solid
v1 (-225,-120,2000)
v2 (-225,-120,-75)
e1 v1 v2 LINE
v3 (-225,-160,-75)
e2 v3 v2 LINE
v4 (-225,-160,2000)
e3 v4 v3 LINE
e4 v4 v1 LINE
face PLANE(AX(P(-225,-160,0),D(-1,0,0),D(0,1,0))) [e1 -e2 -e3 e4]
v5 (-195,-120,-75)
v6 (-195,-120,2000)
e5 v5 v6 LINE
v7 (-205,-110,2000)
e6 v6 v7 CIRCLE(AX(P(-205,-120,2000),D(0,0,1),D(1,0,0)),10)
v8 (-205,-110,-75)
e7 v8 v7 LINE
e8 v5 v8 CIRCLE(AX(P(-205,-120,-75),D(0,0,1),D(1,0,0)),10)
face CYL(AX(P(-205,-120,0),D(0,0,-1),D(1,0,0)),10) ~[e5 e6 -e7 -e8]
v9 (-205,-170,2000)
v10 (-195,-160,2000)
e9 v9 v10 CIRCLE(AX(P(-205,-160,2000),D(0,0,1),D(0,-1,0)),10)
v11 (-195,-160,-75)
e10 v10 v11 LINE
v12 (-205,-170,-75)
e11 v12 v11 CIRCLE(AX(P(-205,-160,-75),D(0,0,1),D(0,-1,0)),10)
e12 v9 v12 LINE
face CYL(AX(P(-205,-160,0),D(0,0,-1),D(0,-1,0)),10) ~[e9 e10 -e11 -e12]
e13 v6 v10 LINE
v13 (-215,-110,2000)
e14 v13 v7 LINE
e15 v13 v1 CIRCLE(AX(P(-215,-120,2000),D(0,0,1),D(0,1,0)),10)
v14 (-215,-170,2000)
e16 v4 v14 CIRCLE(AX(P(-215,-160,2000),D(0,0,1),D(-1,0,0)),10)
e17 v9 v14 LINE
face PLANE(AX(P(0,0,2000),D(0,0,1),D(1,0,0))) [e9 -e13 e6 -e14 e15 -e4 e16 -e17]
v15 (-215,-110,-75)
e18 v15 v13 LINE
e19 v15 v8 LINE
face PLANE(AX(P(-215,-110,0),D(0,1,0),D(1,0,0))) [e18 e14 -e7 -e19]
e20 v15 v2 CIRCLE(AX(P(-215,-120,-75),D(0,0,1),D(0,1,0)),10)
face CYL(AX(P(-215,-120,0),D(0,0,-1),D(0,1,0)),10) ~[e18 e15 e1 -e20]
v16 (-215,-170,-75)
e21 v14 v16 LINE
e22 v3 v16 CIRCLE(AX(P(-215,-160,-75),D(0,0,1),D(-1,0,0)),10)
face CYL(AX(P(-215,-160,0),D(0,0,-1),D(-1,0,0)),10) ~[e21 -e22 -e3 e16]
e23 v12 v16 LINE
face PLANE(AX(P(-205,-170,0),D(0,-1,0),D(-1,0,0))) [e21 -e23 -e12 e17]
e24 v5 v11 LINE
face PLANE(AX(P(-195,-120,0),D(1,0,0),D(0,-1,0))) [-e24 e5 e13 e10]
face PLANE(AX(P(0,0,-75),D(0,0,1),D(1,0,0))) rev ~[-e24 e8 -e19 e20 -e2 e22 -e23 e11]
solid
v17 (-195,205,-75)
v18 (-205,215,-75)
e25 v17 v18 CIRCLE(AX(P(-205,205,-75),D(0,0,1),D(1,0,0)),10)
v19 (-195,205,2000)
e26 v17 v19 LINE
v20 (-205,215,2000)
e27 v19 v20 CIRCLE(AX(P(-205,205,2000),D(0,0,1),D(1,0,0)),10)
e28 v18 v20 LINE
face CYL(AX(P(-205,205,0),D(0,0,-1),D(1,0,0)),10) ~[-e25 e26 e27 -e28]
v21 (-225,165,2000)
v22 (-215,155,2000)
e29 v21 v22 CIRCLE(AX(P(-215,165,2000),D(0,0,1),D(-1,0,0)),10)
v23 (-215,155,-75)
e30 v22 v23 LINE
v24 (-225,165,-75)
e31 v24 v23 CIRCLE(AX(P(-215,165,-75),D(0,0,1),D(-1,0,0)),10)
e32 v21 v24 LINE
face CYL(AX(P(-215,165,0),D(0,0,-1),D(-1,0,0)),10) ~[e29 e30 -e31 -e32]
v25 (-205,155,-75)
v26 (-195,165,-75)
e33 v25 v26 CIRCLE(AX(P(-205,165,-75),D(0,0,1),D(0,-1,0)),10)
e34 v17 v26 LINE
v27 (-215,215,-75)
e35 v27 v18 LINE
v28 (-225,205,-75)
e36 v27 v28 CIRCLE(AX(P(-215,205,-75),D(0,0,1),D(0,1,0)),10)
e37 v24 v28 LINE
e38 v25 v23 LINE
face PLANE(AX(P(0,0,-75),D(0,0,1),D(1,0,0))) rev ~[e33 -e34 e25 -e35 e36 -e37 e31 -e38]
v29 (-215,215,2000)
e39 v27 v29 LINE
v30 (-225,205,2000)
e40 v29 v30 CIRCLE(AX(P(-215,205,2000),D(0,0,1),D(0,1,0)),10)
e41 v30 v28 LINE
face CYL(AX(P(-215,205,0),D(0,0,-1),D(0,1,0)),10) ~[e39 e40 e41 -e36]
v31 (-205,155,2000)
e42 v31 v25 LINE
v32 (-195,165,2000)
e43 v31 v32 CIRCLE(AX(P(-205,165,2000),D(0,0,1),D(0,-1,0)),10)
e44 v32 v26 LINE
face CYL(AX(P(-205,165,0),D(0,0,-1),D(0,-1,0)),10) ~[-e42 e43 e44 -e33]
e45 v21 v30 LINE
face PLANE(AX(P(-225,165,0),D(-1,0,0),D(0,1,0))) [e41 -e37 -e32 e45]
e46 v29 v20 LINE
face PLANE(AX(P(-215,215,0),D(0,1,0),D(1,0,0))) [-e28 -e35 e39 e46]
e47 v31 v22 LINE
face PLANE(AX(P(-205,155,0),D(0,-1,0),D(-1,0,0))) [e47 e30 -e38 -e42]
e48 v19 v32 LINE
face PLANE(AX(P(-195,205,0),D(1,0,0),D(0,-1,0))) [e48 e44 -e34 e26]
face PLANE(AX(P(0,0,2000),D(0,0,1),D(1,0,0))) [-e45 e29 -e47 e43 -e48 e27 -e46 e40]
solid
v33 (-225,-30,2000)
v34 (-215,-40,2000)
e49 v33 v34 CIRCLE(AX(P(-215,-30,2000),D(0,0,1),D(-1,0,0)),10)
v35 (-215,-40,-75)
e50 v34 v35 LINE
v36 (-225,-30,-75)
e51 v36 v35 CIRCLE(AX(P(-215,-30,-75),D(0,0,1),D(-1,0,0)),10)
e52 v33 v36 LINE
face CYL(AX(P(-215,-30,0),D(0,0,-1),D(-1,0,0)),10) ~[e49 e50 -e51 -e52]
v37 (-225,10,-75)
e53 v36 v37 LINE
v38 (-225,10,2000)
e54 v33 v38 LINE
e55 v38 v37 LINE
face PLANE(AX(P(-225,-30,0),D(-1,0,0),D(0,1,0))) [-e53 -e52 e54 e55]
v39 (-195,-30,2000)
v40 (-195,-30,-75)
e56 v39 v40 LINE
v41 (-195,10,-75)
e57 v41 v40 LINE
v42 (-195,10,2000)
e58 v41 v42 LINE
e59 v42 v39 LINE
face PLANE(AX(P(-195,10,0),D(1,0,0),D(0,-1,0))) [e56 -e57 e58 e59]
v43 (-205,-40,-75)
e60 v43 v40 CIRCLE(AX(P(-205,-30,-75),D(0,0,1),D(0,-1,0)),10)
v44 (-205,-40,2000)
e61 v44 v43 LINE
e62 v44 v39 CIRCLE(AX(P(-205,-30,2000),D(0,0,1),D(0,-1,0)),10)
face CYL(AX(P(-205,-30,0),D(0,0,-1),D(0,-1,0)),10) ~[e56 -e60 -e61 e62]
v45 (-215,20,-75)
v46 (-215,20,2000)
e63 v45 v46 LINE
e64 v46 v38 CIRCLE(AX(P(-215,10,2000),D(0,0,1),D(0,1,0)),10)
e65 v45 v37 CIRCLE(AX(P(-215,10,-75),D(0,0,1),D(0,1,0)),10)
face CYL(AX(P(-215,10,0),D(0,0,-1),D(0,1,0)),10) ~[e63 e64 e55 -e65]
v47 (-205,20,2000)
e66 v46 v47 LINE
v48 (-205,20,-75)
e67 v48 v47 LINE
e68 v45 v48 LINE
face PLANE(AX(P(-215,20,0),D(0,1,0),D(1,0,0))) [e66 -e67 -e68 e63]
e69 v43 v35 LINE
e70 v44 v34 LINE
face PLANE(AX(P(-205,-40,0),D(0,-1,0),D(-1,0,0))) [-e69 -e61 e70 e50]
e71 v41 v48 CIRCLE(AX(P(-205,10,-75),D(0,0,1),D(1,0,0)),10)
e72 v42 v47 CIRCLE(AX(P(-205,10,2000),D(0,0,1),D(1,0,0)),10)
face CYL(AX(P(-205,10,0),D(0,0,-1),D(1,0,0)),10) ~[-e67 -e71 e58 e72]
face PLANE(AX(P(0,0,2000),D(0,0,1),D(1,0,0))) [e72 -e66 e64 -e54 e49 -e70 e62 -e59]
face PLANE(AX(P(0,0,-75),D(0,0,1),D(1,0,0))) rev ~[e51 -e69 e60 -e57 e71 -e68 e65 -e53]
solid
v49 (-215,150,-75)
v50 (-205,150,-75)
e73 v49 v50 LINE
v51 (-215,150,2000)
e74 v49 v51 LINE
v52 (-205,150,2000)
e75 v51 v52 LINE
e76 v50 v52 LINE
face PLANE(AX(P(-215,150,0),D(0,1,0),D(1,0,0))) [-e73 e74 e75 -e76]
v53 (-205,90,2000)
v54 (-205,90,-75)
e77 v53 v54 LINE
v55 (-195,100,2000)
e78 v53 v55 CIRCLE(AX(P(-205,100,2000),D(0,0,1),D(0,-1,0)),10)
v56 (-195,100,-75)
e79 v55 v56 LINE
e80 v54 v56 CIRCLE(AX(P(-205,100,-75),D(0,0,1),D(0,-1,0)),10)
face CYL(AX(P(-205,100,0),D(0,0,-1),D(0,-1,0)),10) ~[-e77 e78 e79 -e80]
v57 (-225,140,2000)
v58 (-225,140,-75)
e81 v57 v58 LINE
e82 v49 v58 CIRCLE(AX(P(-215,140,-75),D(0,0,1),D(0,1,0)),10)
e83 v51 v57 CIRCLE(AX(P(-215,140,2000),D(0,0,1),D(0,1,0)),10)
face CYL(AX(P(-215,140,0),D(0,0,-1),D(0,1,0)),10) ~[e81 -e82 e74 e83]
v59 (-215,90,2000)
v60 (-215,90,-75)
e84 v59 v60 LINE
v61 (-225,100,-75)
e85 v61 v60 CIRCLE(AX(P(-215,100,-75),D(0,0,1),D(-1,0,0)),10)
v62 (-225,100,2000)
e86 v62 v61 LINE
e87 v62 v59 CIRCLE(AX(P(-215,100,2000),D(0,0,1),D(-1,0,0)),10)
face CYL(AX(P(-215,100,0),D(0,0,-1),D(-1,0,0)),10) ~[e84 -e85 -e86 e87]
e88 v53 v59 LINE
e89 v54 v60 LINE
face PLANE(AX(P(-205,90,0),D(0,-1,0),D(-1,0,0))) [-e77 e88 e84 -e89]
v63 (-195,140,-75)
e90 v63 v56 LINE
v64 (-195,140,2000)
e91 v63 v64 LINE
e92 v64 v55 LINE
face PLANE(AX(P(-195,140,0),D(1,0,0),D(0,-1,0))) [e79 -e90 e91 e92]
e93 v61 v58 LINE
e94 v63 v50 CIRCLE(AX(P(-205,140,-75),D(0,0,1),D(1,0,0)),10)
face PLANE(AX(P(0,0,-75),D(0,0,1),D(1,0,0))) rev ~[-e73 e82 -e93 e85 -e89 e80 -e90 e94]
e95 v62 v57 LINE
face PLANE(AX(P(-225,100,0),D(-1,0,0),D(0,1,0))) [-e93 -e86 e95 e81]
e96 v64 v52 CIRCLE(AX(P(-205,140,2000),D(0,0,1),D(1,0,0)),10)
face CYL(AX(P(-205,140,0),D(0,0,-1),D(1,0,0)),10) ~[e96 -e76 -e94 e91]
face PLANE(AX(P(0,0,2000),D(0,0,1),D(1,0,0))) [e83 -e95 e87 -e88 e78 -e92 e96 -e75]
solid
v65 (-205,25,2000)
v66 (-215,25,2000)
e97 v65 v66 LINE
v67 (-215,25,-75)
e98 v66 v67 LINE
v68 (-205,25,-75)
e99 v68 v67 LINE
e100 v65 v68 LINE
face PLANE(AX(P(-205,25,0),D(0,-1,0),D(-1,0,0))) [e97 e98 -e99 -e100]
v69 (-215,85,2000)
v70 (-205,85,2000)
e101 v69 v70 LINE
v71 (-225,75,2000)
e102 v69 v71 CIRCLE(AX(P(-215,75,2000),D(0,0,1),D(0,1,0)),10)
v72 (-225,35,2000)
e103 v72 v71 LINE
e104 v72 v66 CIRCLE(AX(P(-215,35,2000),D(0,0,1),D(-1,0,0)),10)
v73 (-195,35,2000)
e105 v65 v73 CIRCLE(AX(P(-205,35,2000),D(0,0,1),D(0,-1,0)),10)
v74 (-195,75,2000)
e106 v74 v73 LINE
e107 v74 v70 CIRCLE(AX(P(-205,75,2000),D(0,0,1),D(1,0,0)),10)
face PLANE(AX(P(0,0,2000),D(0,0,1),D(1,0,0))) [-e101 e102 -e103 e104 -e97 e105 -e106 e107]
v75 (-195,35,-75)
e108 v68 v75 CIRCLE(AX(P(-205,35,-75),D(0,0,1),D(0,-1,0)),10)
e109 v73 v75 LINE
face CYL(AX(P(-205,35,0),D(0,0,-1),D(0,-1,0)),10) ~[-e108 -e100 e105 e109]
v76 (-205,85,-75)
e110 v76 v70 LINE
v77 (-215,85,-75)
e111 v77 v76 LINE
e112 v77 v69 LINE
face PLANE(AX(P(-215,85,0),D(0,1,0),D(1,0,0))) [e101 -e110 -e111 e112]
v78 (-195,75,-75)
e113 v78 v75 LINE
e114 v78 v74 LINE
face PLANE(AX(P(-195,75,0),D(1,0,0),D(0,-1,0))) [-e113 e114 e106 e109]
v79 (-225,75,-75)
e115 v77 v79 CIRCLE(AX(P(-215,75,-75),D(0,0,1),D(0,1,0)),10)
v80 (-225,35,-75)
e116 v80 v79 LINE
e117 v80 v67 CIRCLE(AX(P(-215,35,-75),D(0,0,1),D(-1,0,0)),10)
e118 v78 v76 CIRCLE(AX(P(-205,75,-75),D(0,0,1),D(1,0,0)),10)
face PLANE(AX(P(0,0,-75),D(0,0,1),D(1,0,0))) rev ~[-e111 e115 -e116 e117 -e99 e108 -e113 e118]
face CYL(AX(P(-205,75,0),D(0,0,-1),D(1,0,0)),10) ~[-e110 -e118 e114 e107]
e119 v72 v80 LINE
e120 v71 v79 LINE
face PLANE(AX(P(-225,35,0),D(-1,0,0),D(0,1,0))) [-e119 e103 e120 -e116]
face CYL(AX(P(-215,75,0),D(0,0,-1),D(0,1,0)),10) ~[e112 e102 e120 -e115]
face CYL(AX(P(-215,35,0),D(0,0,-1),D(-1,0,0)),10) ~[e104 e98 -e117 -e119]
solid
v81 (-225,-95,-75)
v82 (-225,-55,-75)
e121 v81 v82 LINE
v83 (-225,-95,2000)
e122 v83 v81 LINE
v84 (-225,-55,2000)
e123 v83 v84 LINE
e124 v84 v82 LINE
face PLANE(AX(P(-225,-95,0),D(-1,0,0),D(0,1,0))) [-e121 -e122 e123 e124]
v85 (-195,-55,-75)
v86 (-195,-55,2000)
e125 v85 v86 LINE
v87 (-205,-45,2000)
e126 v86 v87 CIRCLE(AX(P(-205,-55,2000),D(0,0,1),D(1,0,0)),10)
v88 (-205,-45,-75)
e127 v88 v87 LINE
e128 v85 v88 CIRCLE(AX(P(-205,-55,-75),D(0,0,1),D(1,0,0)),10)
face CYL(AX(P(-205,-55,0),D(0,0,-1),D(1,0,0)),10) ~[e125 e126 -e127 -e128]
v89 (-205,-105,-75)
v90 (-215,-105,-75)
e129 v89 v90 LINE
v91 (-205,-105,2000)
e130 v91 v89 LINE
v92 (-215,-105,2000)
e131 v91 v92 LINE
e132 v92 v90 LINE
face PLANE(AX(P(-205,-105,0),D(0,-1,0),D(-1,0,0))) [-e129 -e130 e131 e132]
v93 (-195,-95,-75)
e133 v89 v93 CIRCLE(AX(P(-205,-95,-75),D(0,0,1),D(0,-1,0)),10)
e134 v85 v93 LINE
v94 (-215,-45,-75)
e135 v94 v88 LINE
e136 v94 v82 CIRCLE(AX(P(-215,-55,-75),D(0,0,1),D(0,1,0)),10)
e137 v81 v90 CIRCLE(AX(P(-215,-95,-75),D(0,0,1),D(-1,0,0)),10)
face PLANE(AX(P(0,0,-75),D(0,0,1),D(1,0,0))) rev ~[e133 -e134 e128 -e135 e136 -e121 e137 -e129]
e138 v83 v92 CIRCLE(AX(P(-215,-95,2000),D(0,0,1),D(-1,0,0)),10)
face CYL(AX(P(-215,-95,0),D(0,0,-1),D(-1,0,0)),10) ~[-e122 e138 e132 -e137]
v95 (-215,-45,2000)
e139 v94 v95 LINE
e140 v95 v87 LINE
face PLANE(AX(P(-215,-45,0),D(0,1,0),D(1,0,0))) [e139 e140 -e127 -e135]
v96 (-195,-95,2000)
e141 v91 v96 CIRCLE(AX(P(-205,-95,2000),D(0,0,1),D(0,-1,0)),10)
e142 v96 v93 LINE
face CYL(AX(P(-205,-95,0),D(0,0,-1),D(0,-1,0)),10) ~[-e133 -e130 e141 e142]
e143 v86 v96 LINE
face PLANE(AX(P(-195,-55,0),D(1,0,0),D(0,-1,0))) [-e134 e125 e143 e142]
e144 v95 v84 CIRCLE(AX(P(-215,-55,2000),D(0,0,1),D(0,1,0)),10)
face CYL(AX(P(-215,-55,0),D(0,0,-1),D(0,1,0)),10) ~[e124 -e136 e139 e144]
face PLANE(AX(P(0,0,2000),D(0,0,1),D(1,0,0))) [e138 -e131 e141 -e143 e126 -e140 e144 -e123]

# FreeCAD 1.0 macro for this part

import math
import FreeCAD as App
import Part
import Sketcher
from FreeCAD import Vector
Q = App.Units.Quantity

doc = App.newDocument("Part")
params = doc.addObject("Spreadsheet::Sheet", "Params")
for row, (alias, value) in enumerate([
    ("sketch1_radius", "10 mm"),
    ("sketch1_width", "10 mm"),
    ("sketch1_height", "40 mm"),
    ("pad1_length", "2000 mm"),
    ("pad1_length2", "75 mm"),
], start=1):
    params.set(f"A{row}", alias)
    params.set(f"B{row}", "=" + value)
    params.setAlias(f"B{row}", alias)

body = doc.addObject("PartDesign::Body", "Body")
body.AllowCompound = True

sketch1 = body.newObject("Sketcher::SketchObject", "Sketch")
sketch1.AttachmentSupport = (doc.getObject("XY_Plane"), [""])
sketch1.MapMode = "FlatFace"
sketch1.addGeometry([
    Part.LineSegment(Vector(-195, -30, 0), Vector(-195, 10, 0)),
    Part.ArcOfCircle(Part.Circle(Vector(-205, 10, 0), Vector(0, 0, 1), 10), math.radians(0), math.radians(90)),
    Part.LineSegment(Vector(-205, 20, 0), Vector(-215, 20, 0)),
    Part.ArcOfCircle(Part.Circle(Vector(-215, 10, 0), Vector(0, 0, 1), 10), math.radians(90), math.radians(180)),
    Part.LineSegment(Vector(-225, 10, 0), Vector(-225, -30, 0)),
    Part.ArcOfCircle(Part.Circle(Vector(-215, -30, 0), Vector(0, 0, 1), 10), math.radians(180), math.radians(270)),
    Part.LineSegment(Vector(-215, -40, 0), Vector(-205, -40, 0)),
    Part.ArcOfCircle(Part.Circle(Vector(-205, -30, 0), Vector(0, 0, 1), 10), math.radians(-90), math.radians(0)),
    Part.LineSegment(Vector(-195, 165, 0), Vector(-195, 205, 0)),
    Part.ArcOfCircle(Part.Circle(Vector(-205, 205, 0), Vector(0, 0, 1), 10), math.radians(0), math.radians(90)),
    Part.LineSegment(Vector(-205, 215, 0), Vector(-215, 215, 0)),
    Part.ArcOfCircle(Part.Circle(Vector(-215, 205, 0), Vector(0, 0, 1), 10), math.radians(90), math.radians(180)),
    Part.LineSegment(Vector(-225, 205, 0), Vector(-225, 165, 0)),
    Part.ArcOfCircle(Part.Circle(Vector(-215, 165, 0), Vector(0, 0, 1), 10), math.radians(180), math.radians(270)),
    Part.LineSegment(Vector(-215, 155, 0), Vector(-205, 155, 0)),
    Part.ArcOfCircle(Part.Circle(Vector(-205, 165, 0), Vector(0, 0, 1), 10), math.radians(-90), math.radians(0)),
    Part.LineSegment(Vector(-195, -95, 0), Vector(-195, -55, 0)),
    Part.ArcOfCircle(Part.Circle(Vector(-205, -55, 0), Vector(0, 0, 1), 10), math.radians(0), math.radians(90)),
    Part.LineSegment(Vector(-205, -45, 0), Vector(-215, -45, 0)),
    Part.ArcOfCircle(Part.Circle(Vector(-215, -55, 0), Vector(0, 0, 1), 10), math.radians(90), math.radians(180)),
    Part.LineSegment(Vector(-225, -55, 0), Vector(-225, -95, 0)),
    Part.ArcOfCircle(Part.Circle(Vector(-215, -95, 0), Vector(0, 0, 1), 10), math.radians(180), math.radians(270)),
    Part.LineSegment(Vector(-215, -105, 0), Vector(-205, -105, 0)),
    Part.ArcOfCircle(Part.Circle(Vector(-205, -95, 0), Vector(0, 0, 1), 10), math.radians(-90), math.radians(0)),
    Part.LineSegment(Vector(-195, 35, 0), Vector(-195, 75, 0)),
    Part.ArcOfCircle(Part.Circle(Vector(-205, 75, 0), Vector(0, 0, 1), 10), math.radians(0), math.radians(90)),
    Part.LineSegment(Vector(-205, 85, 0), Vector(-215, 85, 0)),
    Part.ArcOfCircle(Part.Circle(Vector(-215, 75, 0), Vector(0, 0, 1), 10), math.radians(90), math.radians(180)),
    Part.LineSegment(Vector(-225, 75, 0), Vector(-225, 35, 0)),
    Part.ArcOfCircle(Part.Circle(Vector(-215, 35, 0), Vector(0, 0, 1), 10), math.radians(180), math.radians(270)),
    Part.LineSegment(Vector(-215, 25, 0), Vector(-205, 25, 0)),
    Part.ArcOfCircle(Part.Circle(Vector(-205, 35, 0), Vector(0, 0, 1), 10), math.radians(-90), math.radians(0)),
    Part.LineSegment(Vector(-195, 100, 0), Vector(-195, 140, 0)),
    Part.ArcOfCircle(Part.Circle(Vector(-205, 140, 0), Vector(0, 0, 1), 10), math.radians(0), math.radians(90)),
    Part.LineSegment(Vector(-205, 150, 0), Vector(-215, 150, 0)),
    Part.ArcOfCircle(Part.Circle(Vector(-215, 140, 0), Vector(0, 0, 1), 10), math.radians(90), math.radians(180)),
    Part.LineSegment(Vector(-225, 140, 0), Vector(-225, 100, 0)),
    Part.ArcOfCircle(Part.Circle(Vector(-215, 100, 0), Vector(0, 0, 1), 10), math.radians(180), math.radians(270)),
    Part.LineSegment(Vector(-215, 90, 0), Vector(-205, 90, 0)),
    Part.ArcOfCircle(Part.Circle(Vector(-205, 100, 0), Vector(0, 0, 1), 10), math.radians(-90), math.radians(0)),
    Part.LineSegment(Vector(-195, -160, 0), Vector(-195, -120, 0)),
    Part.ArcOfCircle(Part.Circle(Vector(-205, -120, 0), Vector(0, 0, 1), 10), math.radians(0), math.radians(90)),
    Part.LineSegment(Vector(-205, -110, 0), Vector(-215, -110, 0)),
    Part.ArcOfCircle(Part.Circle(Vector(-215, -120, 0), Vector(0, 0, 1), 10), math.radians(90), math.radians(180)),
    Part.LineSegment(Vector(-225, -120, 0), Vector(-225, -160, 0)),
    Part.ArcOfCircle(Part.Circle(Vector(-215, -160, 0), Vector(0, 0, 1), 10), math.radians(180), math.radians(270)),
    Part.LineSegment(Vector(-215, -170, 0), Vector(-205, -170, 0)),
    Part.ArcOfCircle(Part.Circle(Vector(-205, -160, 0), Vector(0, 0, 1), 10), math.radians(-90), math.radians(0)),
], False)
sketch1.addConstraint([
    Sketcher.Constraint("Tangent", 0, 2, 1, 1),
    Sketcher.Constraint("Tangent", 1, 2, 2, 1),
    Sketcher.Constraint("Tangent", 2, 2, 3, 1),
    Sketcher.Constraint("Tangent", 3, 2, 4, 1),
    Sketcher.Constraint("Tangent", 4, 2, 5, 1),
    Sketcher.Constraint("Tangent", 5, 2, 6, 1),
    Sketcher.Constraint("Tangent", 6, 2, 7, 1),
    Sketcher.Constraint("Tangent", 7, 2, 0, 1),
    Sketcher.Constraint("Tangent", 8, 2, 9, 1),
    Sketcher.Constraint("Tangent", 9, 2, 10, 1),
    Sketcher.Constraint("Tangent", 10, 2, 11, 1),
    Sketcher.Constraint("Tangent", 11, 2, 12, 1),
    Sketcher.Constraint("Tangent", 12, 2, 13, 1),
    Sketcher.Constraint("Tangent", 13, 2, 14, 1),
    Sketcher.Constraint("Tangent", 14, 2, 15, 1),
    Sketcher.Constraint("Tangent", 15, 2, 8, 1),
    Sketcher.Constraint("Tangent", 16, 2, 17, 1),
    Sketcher.Constraint("Tangent", 17, 2, 18, 1),
    Sketcher.Constraint("Tangent", 18, 2, 19, 1),
    Sketcher.Constraint("Tangent", 19, 2, 20, 1),
    Sketcher.Constraint("Tangent", 20, 2, 21, 1),
    Sketcher.Constraint("Tangent", 21, 2, 22, 1),
    Sketcher.Constraint("Tangent", 22, 2, 23, 1),
    Sketcher.Constraint("Tangent", 23, 2, 16, 1),
    Sketcher.Constraint("Tangent", 24, 2, 25, 1),
    Sketcher.Constraint("Tangent", 25, 2, 26, 1),
    Sketcher.Constraint("Tangent", 26, 2, 27, 1),
    Sketcher.Constraint("Tangent", 27, 2, 28, 1),
    Sketcher.Constraint("Tangent", 28, 2, 29, 1),
    Sketcher.Constraint("Tangent", 29, 2, 30, 1),
    Sketcher.Constraint("Tangent", 30, 2, 31, 1),
    Sketcher.Constraint("Tangent", 31, 2, 24, 1),
    Sketcher.Constraint("Tangent", 32, 2, 33, 1),
    Sketcher.Constraint("Tangent", 33, 2, 34, 1),
    Sketcher.Constraint("Tangent", 34, 2, 35, 1),
    Sketcher.Constraint("Tangent", 35, 2, 36, 1),
    Sketcher.Constraint("Tangent", 36, 2, 37, 1),
    Sketcher.Constraint("Tangent", 37, 2, 38, 1),
    Sketcher.Constraint("Tangent", 38, 2, 39, 1),
    Sketcher.Constraint("Tangent", 39, 2, 32, 1),
    Sketcher.Constraint("Tangent", 40, 2, 41, 1),
    Sketcher.Constraint("Tangent", 41, 2, 42, 1),
    Sketcher.Constraint("Tangent", 42, 2, 43, 1),
    Sketcher.Constraint("Tangent", 43, 2, 44, 1),
    Sketcher.Constraint("Tangent", 44, 2, 45, 1),
    Sketcher.Constraint("Tangent", 45, 2, 46, 1),
    Sketcher.Constraint("Tangent", 46, 2, 47, 1),
    Sketcher.Constraint("Tangent", 47, 2, 40, 1),
    Sketcher.Constraint("Vertical", 0),
    Sketcher.Constraint("Horizontal", 2),
    Sketcher.Constraint("Vertical", 4),
    Sketcher.Constraint("Horizontal", 6),
    Sketcher.Constraint("Vertical", 8),
    Sketcher.Constraint("Horizontal", 10),
    Sketcher.Constraint("Vertical", 12),
    Sketcher.Constraint("Horizontal", 14),
    Sketcher.Constraint("Vertical", 16),
    Sketcher.Constraint("Horizontal", 18),
    Sketcher.Constraint("Vertical", 20),
    Sketcher.Constraint("Horizontal", 22),
    Sketcher.Constraint("Vertical", 24),
    Sketcher.Constraint("Horizontal", 26),
    Sketcher.Constraint("Vertical", 28),
    Sketcher.Constraint("Horizontal", 30),
    Sketcher.Constraint("Vertical", 32),
    Sketcher.Constraint("Horizontal", 34),
    Sketcher.Constraint("Vertical", 36),
    Sketcher.Constraint("Horizontal", 38),
    Sketcher.Constraint("Vertical", 40),
    Sketcher.Constraint("Horizontal", 42),
    Sketcher.Constraint("Vertical", 44),
    Sketcher.Constraint("Horizontal", 46),
    Sketcher.Constraint("Equal", 1, 3),
    Sketcher.Constraint("Equal", 3, 5),
    Sketcher.Constraint("Equal", 5, 7),
    Sketcher.Constraint("Equal", 7, 9),
    Sketcher.Constraint("Equal", 9, 11),
    Sketcher.Constraint("Equal", 11, 13),
    Sketcher.Constraint("Equal", 13, 15),
    Sketcher.Constraint("Equal", 15, 17),
    Sketcher.Constraint("Equal", 17, 19),
    Sketcher.Constraint("Equal", 19, 21),
    Sketcher.Constraint("Equal", 21, 23),
    Sketcher.Constraint("Equal", 23, 25),
    Sketcher.Constraint("Equal", 25, 27),
    Sketcher.Constraint("Equal", 27, 29),
    Sketcher.Constraint("Equal", 29, 31),
    Sketcher.Constraint("Equal", 31, 33),
    Sketcher.Constraint("Equal", 33, 35),
    Sketcher.Constraint("Equal", 35, 37),
    Sketcher.Constraint("Equal", 37, 39),
    Sketcher.Constraint("Equal", 39, 41),
    Sketcher.Constraint("Equal", 41, 43),
    Sketcher.Constraint("Equal", 43, 45),
    Sketcher.Constraint("Equal", 45, 47),
    Sketcher.Constraint("Vertical", 7, 3, 9, 3),
    Sketcher.Constraint("Vertical", 5, 3, 11, 3),
    Sketcher.Constraint("Vertical", 15, 3, 17, 3),
    Sketcher.Constraint("Vertical", 13, 3, 19, 3),
    Sketcher.Constraint("Vertical", 23, 3, 25, 3),
    Sketcher.Constraint("Vertical", 21, 3, 27, 3),
    Sketcher.Constraint("Vertical", 31, 3, 33, 3),
    Sketcher.Constraint("Vertical", 29, 3, 35, 3),
    Sketcher.Constraint("Vertical", 39, 3, 41, 3),
    Sketcher.Constraint("Vertical", 37, 3, 43, 3),
    Sketcher.Constraint("Equal", 4, 8),
    Sketcher.Constraint("Equal", 12, 16),
    Sketcher.Constraint("Equal", 20, 24),
    Sketcher.Constraint("Equal", 28, 32),
    Sketcher.Constraint("Equal", 36, 40),
    Sketcher.Constraint("Radius", 1, Q("10 mm")),
    Sketcher.Constraint("DistanceX", 2, 2, 2, 1, Q("10 mm")),
    Sketcher.Constraint("DistanceY", 0, 1, 0, 2, Q("40 mm")),
    Sketcher.Constraint("DistanceX", 1, 3, -1, 1, Q("205 mm")),
    Sketcher.Constraint("DistanceY", -1, 1, 1, 3, Q("10 mm")),
    Sketcher.Constraint("DistanceY", -1, 1, 9, 3, Q("205 mm")),
    Sketcher.Constraint("DistanceY", 17, 3, -1, 1, Q("55 mm")),
    Sketcher.Constraint("DistanceY", -1, 1, 25, 3, Q("75 mm")),
    Sketcher.Constraint("DistanceY", -1, 1, 33, 3, Q("140 mm")),
    Sketcher.Constraint("DistanceY", 41, 3, -1, 1, Q("120 mm")),
])
sketch1.setExpression("Constraints[110]", "Params.sketch1_radius")
sketch1.setExpression("Constraints[111]", "Params.sketch1_width")
sketch1.setExpression("Constraints[112]", "Params.sketch1_height")
pad1 = body.newObject("PartDesign::Pad", "Pad")
pad1.Profile = sketch1
pad1.Type = "TwoLengths"
pad1.setExpression("Length", "Params.pad1_length")
pad1.setExpression("Length2", "Params.pad1_length2")

doc.recompute()
